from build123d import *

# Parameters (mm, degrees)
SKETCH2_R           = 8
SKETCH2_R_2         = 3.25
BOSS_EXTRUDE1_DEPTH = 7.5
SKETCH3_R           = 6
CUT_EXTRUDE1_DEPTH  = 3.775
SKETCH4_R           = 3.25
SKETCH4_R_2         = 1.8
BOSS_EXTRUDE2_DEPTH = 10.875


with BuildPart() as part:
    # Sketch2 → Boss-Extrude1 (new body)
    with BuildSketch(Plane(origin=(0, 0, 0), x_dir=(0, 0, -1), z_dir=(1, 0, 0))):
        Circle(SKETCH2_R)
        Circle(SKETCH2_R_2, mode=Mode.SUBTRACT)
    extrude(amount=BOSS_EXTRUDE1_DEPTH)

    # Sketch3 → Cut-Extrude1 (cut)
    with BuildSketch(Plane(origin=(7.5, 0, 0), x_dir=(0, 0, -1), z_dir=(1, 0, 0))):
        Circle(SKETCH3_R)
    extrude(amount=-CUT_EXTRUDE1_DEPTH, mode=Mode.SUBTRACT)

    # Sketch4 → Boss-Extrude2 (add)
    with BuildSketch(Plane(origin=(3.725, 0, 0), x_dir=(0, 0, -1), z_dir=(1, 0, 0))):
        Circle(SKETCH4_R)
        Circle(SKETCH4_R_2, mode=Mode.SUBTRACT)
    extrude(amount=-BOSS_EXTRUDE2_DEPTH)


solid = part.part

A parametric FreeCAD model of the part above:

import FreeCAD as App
import Part
import Sketcher
from FreeCAD import Vector

doc = App.newDocument("Part")
params = doc.addObject("Spreadsheet::Sheet", "Params")
for row, (alias, value) in enumerate([
    ("sketch1_diameter", "16 mm"),
    ("sketch1_diameter2", "6.5 mm"),
    ("pad1_length", "7.5 mm"),
    ("sketch2_diameter", "12 mm"),
    ("pocket1_length", "3.775 mm"),
    ("sketch3_diameter", "6.5 mm"),
    ("sketch3_diameter2", "3.6 mm"),
    ("pad2_length", "10.875 mm"),
], start=1):
    params.set(f"A{row}", alias)
    params.set(f"B{row}", "=" + value)
    params.setAlias(f"B{row}", alias)

body = doc.addObject("PartDesign::Body", "Body")

# Sketch on YZ plane
sketch1 = body.newObject("Sketcher::SketchObject", "Sketch")
sketch1.AttachmentSupport = (doc.getObject("YZ_Plane"), [""])
sketch1.MapMode = "FlatFace"
sketch1.addGeometry(Part.Circle(Vector(0, 0, 0), Vector(0, 0, 1), 8), False)
sketch1.addGeometry(Part.Circle(Vector(0, 0, 0), Vector(0, 0, 1), 3.25), False)
sketch1.addConstraint(Sketcher.Constraint("Coincident", 0, 3, -1, 1))
sketch1.addConstraint(Sketcher.Constraint("Coincident", 1, 3, -1, 1))
sketch1.addConstraint(Sketcher.Constraint("Diameter", 0, 16.0))
sketch1.addConstraint(Sketcher.Constraint("Diameter", 1, 6.5))
sketch1.setExpression("Constraints[2]", "Params.sketch1_diameter")
sketch1.setExpression("Constraints[3]", "Params.sketch1_diameter2")
pad1 = body.newObject("PartDesign::Pad", "Pad")
pad1.Profile = sketch1
pad1.setExpression("Length", "Params.pad1_length")

# Sketch on YZ plane
sketch2 = body.newObject("Sketcher::SketchObject", "Sketch001")
sketch2.AttachmentSupport = (doc.getObject("YZ_Plane"), [""])
sketch2.MapMode = "FlatFace"
sketch2.AttachmentOffset = App.Placement(Vector(0, 0, 7.5), App.Rotation())
sketch2.addGeometry(Part.Circle(Vector(0, 0, 0), Vector(0, 0, 1), 6), False)
sketch2.addConstraint(Sketcher.Constraint("Coincident", 0, 3, -1, 1))
sketch2.addConstraint(Sketcher.Constraint("Diameter", 0, 12.0))
sketch2.setExpression("Constraints[1]", "Params.sketch2_diameter")
pocket1 = body.newObject("PartDesign::Pocket", "Pocket")
pocket1.Profile = sketch2
pocket1.setExpression("Length", "Params.pocket1_length")

# Sketch on YZ plane
sketch3 = body.newObject("Sketcher::SketchObject", "Sketch002")
sketch3.AttachmentSupport = (doc.getObject("YZ_Plane"), [""])
sketch3.MapMode = "FlatFace"
sketch3.AttachmentOffset = App.Placement(Vector(0, 0, 3.725), App.Rotation())
sketch3.addGeometry(Part.Circle(Vector(0, 0, 0), Vector(0, 0, 1), 3.25), False)
sketch3.addGeometry(Part.Circle(Vector(0, 0, 0), Vector(0, 0, 1), 1.8), False)
sketch3.addConstraint(Sketcher.Constraint("Coincident", 0, 3, -1, 1))
sketch3.addConstraint(Sketcher.Constraint("Coincident", 1, 3, -1, 1))
sketch3.addConstraint(Sketcher.Constraint("Diameter", 0, 6.5))
sketch3.addConstraint(Sketcher.Constraint("Diameter", 1, 3.6))
sketch3.setExpression("Constraints[2]", "Params.sketch3_diameter")
sketch3.setExpression("Constraints[3]", "Params.sketch3_diameter2")
pad2 = body.newObject("PartDesign::Pad", "Pad001")
pad2.Profile = sketch3
pad2.setExpression("Length", "Params.pad2_length")
pad2.Reversed = True

doc.recompute()
